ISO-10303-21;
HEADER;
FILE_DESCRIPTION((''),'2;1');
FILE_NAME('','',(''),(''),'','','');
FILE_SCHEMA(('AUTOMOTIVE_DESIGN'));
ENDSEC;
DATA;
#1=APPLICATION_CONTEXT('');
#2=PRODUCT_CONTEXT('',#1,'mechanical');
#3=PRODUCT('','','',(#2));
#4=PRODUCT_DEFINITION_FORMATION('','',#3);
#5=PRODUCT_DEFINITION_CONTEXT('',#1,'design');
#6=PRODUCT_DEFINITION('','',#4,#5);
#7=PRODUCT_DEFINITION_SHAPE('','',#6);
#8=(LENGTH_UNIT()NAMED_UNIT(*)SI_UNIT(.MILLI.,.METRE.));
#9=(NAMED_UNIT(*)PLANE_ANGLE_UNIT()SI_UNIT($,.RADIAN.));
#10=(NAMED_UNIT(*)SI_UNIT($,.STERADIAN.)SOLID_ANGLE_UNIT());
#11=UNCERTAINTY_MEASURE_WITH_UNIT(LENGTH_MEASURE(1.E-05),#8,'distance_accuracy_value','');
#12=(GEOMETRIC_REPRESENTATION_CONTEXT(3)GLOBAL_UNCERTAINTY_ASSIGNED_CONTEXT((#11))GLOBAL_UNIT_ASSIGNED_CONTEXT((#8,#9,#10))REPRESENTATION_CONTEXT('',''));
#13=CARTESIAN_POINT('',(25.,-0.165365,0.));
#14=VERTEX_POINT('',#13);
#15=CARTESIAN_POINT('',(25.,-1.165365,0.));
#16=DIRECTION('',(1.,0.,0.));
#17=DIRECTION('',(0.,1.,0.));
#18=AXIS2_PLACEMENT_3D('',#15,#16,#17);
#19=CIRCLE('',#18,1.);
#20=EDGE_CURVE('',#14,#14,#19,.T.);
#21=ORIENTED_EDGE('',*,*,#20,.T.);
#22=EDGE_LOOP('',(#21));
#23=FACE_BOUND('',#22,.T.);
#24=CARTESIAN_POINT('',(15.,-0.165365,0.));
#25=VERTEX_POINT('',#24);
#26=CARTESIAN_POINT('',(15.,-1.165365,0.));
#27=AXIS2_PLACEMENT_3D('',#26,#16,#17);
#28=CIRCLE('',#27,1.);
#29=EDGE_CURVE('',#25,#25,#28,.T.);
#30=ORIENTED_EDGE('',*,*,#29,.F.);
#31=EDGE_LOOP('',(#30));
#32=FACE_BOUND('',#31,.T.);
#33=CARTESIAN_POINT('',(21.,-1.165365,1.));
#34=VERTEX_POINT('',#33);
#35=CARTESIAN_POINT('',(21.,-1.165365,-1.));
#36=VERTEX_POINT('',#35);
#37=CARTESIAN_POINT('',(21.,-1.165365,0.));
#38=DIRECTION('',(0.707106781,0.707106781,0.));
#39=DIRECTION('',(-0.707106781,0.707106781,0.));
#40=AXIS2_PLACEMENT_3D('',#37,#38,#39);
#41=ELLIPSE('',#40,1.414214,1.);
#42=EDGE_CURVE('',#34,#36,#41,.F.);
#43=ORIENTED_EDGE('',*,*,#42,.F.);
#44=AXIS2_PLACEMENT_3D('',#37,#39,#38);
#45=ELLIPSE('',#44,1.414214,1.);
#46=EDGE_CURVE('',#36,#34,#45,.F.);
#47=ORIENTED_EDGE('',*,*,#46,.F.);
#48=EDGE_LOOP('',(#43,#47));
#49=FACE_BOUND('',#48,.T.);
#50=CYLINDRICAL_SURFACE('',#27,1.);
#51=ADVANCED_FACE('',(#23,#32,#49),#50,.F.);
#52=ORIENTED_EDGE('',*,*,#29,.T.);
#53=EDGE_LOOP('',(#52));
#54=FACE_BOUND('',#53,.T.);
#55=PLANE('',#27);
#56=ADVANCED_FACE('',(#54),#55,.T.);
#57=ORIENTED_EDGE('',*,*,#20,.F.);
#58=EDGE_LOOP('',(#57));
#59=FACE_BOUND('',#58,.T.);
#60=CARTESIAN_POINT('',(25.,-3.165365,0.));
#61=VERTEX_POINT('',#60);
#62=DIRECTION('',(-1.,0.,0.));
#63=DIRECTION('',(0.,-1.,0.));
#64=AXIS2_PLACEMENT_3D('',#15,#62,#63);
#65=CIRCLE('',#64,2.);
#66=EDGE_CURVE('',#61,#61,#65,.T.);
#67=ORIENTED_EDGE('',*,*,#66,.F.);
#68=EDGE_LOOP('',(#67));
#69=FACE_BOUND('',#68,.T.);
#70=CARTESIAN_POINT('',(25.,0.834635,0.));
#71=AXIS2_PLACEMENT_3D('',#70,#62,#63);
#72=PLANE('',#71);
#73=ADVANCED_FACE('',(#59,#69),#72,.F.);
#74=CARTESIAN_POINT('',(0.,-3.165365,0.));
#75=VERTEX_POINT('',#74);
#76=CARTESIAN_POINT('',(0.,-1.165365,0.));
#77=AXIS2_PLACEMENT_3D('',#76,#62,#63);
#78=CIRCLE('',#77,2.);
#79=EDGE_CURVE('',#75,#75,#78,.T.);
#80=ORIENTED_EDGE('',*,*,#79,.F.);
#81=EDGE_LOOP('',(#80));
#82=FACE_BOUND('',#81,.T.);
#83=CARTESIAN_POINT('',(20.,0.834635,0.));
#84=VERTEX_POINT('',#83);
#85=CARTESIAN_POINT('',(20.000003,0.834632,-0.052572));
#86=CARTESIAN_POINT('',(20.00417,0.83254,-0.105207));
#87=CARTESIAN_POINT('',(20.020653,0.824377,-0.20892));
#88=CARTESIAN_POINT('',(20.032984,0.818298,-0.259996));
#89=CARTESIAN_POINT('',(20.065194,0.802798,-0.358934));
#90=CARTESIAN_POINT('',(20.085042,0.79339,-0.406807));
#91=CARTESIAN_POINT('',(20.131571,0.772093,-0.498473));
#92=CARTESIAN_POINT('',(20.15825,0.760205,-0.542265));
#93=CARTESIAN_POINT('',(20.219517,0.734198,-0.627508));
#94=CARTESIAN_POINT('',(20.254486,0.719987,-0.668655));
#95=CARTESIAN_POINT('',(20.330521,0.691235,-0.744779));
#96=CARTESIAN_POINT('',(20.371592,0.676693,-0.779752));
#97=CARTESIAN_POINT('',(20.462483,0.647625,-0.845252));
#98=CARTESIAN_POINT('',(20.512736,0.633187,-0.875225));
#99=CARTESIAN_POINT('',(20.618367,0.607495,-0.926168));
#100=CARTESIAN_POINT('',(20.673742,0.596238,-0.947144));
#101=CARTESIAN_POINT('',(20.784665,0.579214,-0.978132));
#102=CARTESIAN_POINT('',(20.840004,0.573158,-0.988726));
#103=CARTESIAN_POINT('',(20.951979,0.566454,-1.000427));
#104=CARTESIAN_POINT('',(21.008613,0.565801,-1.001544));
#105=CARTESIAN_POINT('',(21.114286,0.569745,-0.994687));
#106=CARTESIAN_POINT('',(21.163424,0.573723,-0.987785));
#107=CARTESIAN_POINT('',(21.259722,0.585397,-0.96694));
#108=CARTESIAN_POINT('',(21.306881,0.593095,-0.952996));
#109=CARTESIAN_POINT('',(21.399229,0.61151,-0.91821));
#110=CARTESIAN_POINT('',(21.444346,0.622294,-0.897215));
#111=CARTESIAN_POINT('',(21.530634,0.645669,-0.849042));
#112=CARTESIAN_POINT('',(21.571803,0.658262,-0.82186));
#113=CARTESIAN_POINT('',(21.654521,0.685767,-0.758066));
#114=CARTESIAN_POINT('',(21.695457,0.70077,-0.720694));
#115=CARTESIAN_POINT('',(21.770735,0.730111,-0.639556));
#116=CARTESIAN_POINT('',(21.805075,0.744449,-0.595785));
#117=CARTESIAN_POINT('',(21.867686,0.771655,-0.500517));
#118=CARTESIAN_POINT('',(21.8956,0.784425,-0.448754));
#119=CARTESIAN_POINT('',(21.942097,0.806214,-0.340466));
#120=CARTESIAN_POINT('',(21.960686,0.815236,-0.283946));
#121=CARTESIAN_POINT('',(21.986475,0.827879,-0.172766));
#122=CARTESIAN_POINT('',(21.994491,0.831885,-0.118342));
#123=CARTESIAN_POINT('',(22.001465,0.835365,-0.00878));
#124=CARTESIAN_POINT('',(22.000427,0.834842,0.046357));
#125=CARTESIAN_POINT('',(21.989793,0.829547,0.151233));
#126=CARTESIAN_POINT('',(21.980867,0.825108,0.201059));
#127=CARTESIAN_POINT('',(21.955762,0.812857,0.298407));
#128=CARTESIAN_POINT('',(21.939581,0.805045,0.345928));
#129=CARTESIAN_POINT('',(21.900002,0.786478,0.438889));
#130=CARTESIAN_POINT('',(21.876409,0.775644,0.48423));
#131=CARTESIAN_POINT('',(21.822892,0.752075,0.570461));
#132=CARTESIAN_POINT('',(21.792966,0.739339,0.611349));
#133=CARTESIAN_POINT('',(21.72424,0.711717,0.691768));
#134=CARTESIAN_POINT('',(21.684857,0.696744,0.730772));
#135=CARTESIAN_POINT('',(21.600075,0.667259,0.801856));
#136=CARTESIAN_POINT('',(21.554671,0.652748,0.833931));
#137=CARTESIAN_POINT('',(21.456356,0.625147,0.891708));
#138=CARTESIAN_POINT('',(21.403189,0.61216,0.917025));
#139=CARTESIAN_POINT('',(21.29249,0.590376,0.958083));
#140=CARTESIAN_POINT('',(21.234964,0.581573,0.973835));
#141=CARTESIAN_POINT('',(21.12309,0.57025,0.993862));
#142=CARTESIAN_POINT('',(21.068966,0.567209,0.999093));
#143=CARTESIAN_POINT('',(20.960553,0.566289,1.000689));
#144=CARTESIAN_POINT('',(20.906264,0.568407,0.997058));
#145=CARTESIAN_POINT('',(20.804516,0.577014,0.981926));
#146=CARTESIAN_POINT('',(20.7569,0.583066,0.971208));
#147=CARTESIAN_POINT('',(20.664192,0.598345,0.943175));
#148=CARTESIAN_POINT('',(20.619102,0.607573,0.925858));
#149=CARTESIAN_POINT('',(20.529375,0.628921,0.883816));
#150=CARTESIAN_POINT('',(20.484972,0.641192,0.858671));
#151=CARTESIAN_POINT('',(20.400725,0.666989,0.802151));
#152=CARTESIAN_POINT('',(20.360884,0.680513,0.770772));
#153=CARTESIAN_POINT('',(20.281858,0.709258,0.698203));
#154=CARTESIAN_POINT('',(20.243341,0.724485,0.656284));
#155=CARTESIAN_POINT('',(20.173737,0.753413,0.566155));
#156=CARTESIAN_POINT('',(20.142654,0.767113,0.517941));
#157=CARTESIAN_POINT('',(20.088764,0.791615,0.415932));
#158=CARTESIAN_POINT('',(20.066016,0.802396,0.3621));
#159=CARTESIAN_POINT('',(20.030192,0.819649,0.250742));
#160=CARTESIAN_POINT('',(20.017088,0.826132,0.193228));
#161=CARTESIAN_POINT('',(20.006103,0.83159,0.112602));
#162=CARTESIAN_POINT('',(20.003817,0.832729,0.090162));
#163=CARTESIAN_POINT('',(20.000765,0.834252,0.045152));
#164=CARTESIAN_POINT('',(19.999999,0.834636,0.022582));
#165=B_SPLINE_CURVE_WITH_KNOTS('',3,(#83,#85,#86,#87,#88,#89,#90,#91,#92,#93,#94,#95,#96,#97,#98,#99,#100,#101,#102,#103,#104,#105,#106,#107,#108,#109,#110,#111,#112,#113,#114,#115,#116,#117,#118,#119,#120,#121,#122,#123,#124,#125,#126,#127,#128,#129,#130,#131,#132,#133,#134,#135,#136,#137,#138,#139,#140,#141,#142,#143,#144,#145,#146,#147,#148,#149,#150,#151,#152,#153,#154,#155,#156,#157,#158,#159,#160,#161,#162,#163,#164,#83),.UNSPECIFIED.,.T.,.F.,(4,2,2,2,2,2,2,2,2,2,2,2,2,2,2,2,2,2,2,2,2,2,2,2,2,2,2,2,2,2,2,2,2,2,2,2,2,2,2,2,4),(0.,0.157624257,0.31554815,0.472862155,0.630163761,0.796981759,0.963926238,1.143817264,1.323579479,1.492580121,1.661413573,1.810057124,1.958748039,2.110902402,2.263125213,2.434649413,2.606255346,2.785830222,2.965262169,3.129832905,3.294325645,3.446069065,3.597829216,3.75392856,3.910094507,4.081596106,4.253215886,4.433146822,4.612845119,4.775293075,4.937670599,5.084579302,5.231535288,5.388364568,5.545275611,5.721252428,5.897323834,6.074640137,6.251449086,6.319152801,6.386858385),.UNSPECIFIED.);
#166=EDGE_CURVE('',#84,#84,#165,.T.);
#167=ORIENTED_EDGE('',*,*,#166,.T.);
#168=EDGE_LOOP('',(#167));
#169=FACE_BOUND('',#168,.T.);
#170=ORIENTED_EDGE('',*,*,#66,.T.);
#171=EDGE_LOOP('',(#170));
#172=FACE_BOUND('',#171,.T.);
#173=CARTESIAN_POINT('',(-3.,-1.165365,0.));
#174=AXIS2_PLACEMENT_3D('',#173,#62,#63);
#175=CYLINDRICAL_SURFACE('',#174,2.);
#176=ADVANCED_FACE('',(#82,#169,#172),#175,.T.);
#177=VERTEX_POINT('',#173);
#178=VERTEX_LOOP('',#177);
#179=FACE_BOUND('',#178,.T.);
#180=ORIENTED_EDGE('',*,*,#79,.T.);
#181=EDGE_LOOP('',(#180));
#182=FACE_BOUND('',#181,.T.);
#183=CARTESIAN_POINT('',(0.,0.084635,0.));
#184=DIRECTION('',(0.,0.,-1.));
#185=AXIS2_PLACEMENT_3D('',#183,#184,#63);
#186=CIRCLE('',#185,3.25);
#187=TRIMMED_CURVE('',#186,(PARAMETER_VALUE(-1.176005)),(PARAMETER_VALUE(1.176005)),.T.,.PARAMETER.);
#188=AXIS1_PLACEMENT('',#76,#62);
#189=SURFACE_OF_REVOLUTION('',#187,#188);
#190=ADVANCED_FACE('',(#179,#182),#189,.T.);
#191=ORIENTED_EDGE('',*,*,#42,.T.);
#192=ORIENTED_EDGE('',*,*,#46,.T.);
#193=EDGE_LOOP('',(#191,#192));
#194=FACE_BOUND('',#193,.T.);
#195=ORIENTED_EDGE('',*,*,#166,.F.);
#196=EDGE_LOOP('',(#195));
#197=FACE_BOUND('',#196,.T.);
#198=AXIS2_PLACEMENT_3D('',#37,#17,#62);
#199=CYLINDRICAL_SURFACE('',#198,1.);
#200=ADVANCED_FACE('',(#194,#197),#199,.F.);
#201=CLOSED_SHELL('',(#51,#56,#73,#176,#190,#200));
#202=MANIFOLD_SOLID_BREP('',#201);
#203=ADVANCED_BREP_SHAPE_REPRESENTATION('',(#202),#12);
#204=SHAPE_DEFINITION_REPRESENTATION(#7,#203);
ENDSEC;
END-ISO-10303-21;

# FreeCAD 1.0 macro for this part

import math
import FreeCAD as App
import Part
import Sketcher

V = App.Vector
Q = App.Units.Quantity

doc = App.newDocument("Part")
body = doc.addObject("PartDesign::Body", "Body")

# Sketch on XY plane
sketch1 = body.newObject("Sketcher::SketchObject", "Sketch")
sketch1.AttachmentSupport = (doc.getObject("XY_Plane"), [""])
sketch1.MapMode = "FlatFace"
sketch1.addGeometry([
    Part.LineSegment(V(25, 0.8, 0), V(0, 0.8, 0)),
    Part.ArcOfCircle(Part.Circle(V(0, -2.4, 0), V(0, 0, 1), 3.2), math.radians(90), math.radians(157)),
    Part.LineSegment(V(-3, -1.2, 0), V(25, -1.2, 0)),
    Part.LineSegment(V(25, -1.2, 0), V(25, 0.8, 0)),
], False)
sketch1.addGeometry(Part.LineSegment(V(-3, -1.2, 0), V(25, -1.2, 0)), True)  # axis
sketch1.addConstraint([
    Sketcher.Constraint("Tangent", 0, 2, 1, 1),
    Sketcher.Constraint("Coincident", 1, 2, 2, 1),
    Sketcher.Constraint("Coincident", 2, 2, 3, 1),
    Sketcher.Constraint("Coincident", 3, 2, 0, 1),
    Sketcher.Constraint("Horizontal", 0),
    Sketcher.Constraint("Horizontal", 2),
    Sketcher.Constraint("Vertical", 3),
    Sketcher.Constraint("Horizontal", 4),
    Sketcher.Constraint("Coincident", 4, 1, 1, 2),
    Sketcher.Constraint("PointOnObject", 1, 3, -2),
    Sketcher.Constraint("Vertical", 3, 2, 4, 2),
    Sketcher.Constraint("DistanceX", 0, 2, 0, 1, Q("25 mm")),
    Sketcher.Constraint("DistanceX", 2, 1, 2, 2, Q("28 mm")),
    Sketcher.Constraint("DistanceY", 3, 1, 3, 2, Q("2 mm")),
    Sketcher.Constraint("DistanceY", 1, 3, -1, 1, Q("2.415365 mm")),
])
revolution = body.newObject("PartDesign::Revolution", "Revolution")
revolution.Profile = sketch1
revolution.ReferenceAxis = (sketch1, ["Axis0"])
revolution.Angle = 360

# Sketch on XZ plane
sketch2 = body.newObject("Sketcher::SketchObject", "Sketch001")
sketch2.AttachmentSupport = (doc.getObject("XZ_Plane"), [""])
sketch2.MapMode = "FlatFace"
sketch2.AttachmentOffset = App.Placement(V(0, 0, -0.834635), App.Rotation())
sketch2.addGeometry(Part.Circle(V(21, 0, 0), V(0, 0, 1), 1), False)
sketch2.addConstraint([
    Sketcher.Constraint("PointOnObject", 0, 3, -1),
    Sketcher.Constraint("Diameter", 0, Q("2 mm")),
    Sketcher.Constraint("DistanceX", -1, 1, 0, 3, Q("21 mm")),
])
pocket1 = body.newObject("PartDesign::Pocket", "Pocket")
pocket1.Profile = sketch2
pocket1.Length = 2
pocket1.Reversed = True

# Sketch on YZ plane
sketch3 = body.newObject("Sketcher::SketchObject", "Sketch002")
sketch3.AttachmentSupport = (doc.getObject("YZ_Plane"), [""])
sketch3.MapMode = "FlatFace"
sketch3.AttachmentOffset = App.Placement(V(0, 0, 25), App.Rotation())
sketch3.addGeometry(Part.Circle(V(-1.2, 0, 0), V(0, 0, 1), 1), False)
sketch3.addConstraint([
    Sketcher.Constraint("PointOnObject", 0, 3, -1),
    Sketcher.Constraint("Diameter", 0, Q("2 mm")),
    Sketcher.Constraint("DistanceX", 0, 3, -1, 1, Q("1.165365 mm")),
])
pocket2 = body.newObject("PartDesign::Pocket", "Pocket001")
pocket2.Profile = sketch3
pocket2.Length = 10

doc.recompute()
